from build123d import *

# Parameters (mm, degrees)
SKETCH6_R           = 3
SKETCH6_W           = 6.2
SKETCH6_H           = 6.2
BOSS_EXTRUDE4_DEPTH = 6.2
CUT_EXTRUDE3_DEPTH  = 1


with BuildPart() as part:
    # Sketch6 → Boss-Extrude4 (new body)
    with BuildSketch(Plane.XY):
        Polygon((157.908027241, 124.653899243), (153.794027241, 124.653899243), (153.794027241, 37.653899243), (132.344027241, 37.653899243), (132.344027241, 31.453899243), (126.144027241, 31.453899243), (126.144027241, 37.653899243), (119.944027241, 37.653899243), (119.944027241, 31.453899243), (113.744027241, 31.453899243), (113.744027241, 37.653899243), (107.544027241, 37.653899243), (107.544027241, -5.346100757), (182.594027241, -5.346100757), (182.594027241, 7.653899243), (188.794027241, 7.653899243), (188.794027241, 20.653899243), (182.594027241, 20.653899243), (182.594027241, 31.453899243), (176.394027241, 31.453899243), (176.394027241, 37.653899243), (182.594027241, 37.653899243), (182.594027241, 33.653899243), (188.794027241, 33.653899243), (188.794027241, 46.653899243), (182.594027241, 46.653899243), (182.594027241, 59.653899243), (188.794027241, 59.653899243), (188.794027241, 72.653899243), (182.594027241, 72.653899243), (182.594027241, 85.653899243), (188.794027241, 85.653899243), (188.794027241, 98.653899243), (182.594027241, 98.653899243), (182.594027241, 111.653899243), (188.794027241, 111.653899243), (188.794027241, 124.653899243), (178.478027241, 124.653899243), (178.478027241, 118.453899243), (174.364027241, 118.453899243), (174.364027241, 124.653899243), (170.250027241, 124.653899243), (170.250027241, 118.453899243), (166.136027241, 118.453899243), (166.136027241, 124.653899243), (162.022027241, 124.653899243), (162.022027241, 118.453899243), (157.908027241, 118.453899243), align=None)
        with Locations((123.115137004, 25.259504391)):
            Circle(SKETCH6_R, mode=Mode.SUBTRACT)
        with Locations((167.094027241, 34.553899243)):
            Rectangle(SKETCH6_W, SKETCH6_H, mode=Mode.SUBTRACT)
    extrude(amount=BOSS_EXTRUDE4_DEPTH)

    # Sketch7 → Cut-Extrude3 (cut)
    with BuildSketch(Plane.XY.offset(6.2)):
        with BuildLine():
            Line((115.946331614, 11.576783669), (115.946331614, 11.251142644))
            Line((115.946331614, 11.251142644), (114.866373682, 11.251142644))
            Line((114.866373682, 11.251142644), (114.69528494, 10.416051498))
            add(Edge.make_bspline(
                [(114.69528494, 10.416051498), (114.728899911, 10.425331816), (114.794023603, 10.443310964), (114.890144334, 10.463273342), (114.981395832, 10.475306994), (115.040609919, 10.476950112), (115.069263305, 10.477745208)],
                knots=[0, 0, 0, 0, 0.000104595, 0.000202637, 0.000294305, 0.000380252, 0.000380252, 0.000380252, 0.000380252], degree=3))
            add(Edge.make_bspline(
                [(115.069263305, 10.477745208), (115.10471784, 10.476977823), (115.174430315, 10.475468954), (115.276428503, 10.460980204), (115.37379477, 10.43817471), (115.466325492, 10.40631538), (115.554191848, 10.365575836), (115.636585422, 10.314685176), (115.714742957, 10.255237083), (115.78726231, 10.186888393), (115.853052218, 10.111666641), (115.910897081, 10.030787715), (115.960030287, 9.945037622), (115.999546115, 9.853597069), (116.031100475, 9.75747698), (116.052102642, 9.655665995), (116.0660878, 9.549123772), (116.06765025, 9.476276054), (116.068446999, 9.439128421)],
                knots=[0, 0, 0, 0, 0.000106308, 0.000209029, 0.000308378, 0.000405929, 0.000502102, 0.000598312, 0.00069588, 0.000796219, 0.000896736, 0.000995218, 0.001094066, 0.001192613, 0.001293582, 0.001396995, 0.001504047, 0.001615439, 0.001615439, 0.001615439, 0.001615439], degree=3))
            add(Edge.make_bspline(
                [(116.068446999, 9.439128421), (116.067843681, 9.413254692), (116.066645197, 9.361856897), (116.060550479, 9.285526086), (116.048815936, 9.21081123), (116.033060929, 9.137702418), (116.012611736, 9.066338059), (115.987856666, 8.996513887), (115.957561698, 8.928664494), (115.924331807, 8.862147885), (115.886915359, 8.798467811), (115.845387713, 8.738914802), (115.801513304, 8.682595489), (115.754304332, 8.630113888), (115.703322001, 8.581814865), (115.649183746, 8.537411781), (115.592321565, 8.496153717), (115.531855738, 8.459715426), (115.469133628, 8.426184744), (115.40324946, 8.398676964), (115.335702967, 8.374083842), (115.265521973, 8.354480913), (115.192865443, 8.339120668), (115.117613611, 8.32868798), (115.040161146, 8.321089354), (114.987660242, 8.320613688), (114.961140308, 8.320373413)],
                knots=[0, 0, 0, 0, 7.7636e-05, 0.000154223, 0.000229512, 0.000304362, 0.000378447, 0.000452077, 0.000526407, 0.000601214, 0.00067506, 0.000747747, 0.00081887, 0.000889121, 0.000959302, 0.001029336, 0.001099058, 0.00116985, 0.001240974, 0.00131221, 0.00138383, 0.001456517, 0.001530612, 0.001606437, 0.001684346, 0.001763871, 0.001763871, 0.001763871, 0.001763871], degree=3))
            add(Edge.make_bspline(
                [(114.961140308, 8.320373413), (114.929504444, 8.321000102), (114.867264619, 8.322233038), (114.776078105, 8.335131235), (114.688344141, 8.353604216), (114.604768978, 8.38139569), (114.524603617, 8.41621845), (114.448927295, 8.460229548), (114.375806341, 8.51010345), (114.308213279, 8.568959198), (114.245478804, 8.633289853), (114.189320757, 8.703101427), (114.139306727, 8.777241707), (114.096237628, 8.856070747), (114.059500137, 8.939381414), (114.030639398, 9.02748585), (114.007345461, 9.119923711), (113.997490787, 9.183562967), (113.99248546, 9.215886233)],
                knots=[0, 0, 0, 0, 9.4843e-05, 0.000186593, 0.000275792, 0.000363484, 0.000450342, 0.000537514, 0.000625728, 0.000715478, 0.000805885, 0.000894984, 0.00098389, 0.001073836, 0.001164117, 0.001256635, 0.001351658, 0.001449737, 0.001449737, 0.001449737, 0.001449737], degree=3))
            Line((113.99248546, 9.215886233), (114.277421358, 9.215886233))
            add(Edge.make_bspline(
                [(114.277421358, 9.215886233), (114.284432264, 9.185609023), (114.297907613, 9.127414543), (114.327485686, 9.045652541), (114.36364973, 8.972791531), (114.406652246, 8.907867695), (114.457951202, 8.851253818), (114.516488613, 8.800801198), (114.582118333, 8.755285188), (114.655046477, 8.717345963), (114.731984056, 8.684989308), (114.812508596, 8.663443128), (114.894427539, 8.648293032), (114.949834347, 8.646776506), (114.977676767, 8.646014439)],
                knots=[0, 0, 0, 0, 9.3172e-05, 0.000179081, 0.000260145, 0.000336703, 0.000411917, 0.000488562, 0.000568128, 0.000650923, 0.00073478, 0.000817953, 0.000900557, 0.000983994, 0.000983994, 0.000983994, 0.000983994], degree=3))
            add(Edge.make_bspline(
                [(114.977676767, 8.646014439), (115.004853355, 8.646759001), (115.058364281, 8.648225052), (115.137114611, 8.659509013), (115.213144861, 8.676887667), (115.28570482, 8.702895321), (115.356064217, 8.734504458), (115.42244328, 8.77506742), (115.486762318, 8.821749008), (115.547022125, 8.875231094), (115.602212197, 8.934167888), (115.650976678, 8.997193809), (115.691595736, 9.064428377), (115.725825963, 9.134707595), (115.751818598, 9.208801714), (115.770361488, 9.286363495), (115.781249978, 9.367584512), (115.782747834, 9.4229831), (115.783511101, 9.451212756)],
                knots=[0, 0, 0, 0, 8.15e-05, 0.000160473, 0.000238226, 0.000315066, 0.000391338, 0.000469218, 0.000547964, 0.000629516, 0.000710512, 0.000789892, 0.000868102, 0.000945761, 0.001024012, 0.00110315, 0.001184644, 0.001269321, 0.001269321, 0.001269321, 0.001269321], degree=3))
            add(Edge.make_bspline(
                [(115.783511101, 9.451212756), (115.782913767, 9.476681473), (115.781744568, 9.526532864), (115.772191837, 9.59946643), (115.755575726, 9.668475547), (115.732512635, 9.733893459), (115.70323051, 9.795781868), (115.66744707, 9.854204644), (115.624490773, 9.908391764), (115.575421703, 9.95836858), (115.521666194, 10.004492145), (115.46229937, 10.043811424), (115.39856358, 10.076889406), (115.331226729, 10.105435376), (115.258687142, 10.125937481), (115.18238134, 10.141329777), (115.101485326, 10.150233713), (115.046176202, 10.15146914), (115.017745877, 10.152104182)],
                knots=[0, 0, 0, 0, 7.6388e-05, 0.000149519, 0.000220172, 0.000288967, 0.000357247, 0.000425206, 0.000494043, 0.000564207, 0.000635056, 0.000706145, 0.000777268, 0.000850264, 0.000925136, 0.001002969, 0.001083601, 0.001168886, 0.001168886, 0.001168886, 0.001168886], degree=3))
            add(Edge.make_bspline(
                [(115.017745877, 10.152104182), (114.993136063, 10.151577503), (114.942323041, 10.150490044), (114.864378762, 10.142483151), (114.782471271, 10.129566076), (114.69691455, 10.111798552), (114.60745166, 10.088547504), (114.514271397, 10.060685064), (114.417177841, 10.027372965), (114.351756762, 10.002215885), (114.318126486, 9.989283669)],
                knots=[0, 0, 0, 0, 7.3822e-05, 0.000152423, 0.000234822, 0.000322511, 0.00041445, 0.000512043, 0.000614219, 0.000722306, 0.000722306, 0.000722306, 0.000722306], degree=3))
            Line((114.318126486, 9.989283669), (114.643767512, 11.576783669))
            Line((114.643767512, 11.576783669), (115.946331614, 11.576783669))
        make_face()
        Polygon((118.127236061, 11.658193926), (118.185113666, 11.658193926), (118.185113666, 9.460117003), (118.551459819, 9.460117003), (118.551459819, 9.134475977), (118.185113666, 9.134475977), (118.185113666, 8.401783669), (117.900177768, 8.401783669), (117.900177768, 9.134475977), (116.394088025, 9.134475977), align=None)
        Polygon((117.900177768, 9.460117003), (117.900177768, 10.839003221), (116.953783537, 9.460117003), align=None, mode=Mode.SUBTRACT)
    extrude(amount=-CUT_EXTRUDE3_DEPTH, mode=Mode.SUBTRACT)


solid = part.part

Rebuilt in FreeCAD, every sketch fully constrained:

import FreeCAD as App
import Part
import Sketcher

V = App.Vector

doc = App.newDocument("Part")
body = doc.addObject("PartDesign::Body", "Body")

sketch1 = doc.addObject("Sketcher::SketchObject", "Sketch")
body.addObject(sketch1)
sketch1.AttachmentSupport = (doc.XY_Plane, [""])
sketch1.MapMode = "FlatFace"
sketch1.addGeometry(Part.LineSegment(V(157.9, 124.7, 0), V(153.8, 124.7, 0)), False)
sketch1.addGeometry(Part.LineSegment(V(153.8, 124.7, 0), V(153.8, 37.7, 0)), False)
sketch1.addGeometry(Part.LineSegment(V(153.8, 37.7, 0), V(132.3, 37.7, 0)), False)
sketch1.addGeometry(Part.LineSegment(V(132.3, 37.7, 0), V(132.3, 31.5, 0)), False)
sketch1.addGeometry(Part.LineSegment(V(132.3, 31.5, 0), V(126.1, 31.5, 0)), False)
sketch1.addGeometry(Part.LineSegment(V(126.1, 31.5, 0), V(126.1, 37.7, 0)), False)
sketch1.addGeometry(Part.LineSegment(V(126.1, 37.7, 0), V(119.9, 37.7, 0)), False)
sketch1.addGeometry(Part.LineSegment(V(119.9, 37.7, 0), V(119.9, 31.5, 0)), False)
sketch1.addGeometry(Part.LineSegment(V(119.9, 31.5, 0), V(113.7, 31.5, 0)), False)
sketch1.addGeometry(Part.LineSegment(V(113.7, 31.5, 0), V(113.7, 37.7, 0)), False)
sketch1.addGeometry(Part.LineSegment(V(113.7, 37.7, 0), V(107.5, 37.7, 0)), False)
sketch1.addGeometry(Part.LineSegment(V(107.5, 37.7, 0), V(107.5, -5.3, 0)), False)
sketch1.addGeometry(Part.LineSegment(V(107.5, -5.3, 0), V(182.6, -5.3, 0)), False)
sketch1.addGeometry(Part.LineSegment(V(182.6, -5.3, 0), V(182.6, 7.7, 0)), False)
sketch1.addGeometry(Part.LineSegment(V(182.6, 7.7, 0), V(188.8, 7.7, 0)), False)
sketch1.addGeometry(Part.LineSegment(V(188.8, 7.7, 0), V(188.8, 20.7, 0)), False)
sketch1.addGeometry(Part.LineSegment(V(188.8, 20.7, 0), V(182.6, 20.7, 0)), False)
sketch1.addGeometry(Part.LineSegment(V(182.6, 20.7, 0), V(182.6, 31.5, 0)), False)
sketch1.addGeometry(Part.LineSegment(V(182.6, 31.5, 0), V(176.4, 31.5, 0)), False)
sketch1.addGeometry(Part.LineSegment(V(176.4, 31.5, 0), V(176.4, 37.7, 0)), False)
sketch1.addGeometry(Part.LineSegment(V(176.4, 37.7, 0), V(182.6, 37.7, 0)), False)
sketch1.addGeometry(Part.LineSegment(V(182.6, 37.7, 0), V(182.6, 33.7, 0)), False)
sketch1.addGeometry(Part.LineSegment(V(182.6, 33.7, 0), V(188.8, 33.7, 0)), False)
sketch1.addGeometry(Part.LineSegment(V(188.8, 33.7, 0), V(188.8, 46.7, 0)), False)
sketch1.addGeometry(Part.LineSegment(V(188.8, 46.7, 0), V(182.6, 46.7, 0)), False)
sketch1.addGeometry(Part.LineSegment(V(182.6, 46.7, 0), V(182.6, 59.7, 0)), False)
sketch1.addGeometry(Part.LineSegment(V(182.6, 59.7, 0), V(188.8, 59.7, 0)), False)
sketch1.addGeometry(Part.LineSegment(V(188.8, 59.7, 0), V(188.8, 72.7, 0)), False)
sketch1.addGeometry(Part.LineSegment(V(188.8, 72.7, 0), V(182.6, 72.7, 0)), False)
sketch1.addGeometry(Part.LineSegment(V(182.6, 72.7, 0), V(182.6, 85.7, 0)), False)
sketch1.addGeometry(Part.LineSegment(V(182.6, 85.7, 0), V(188.8, 85.7, 0)), False)
sketch1.addGeometry(Part.LineSegment(V(188.8, 85.7, 0), V(188.8, 98.7, 0)), False)
sketch1.addGeometry(Part.LineSegment(V(188.8, 98.7, 0), V(182.6, 98.7, 0)), False)
sketch1.addGeometry(Part.LineSegment(V(182.6, 98.7, 0), V(182.6, 111.7, 0)), False)
sketch1.addGeometry(Part.LineSegment(V(182.6, 111.7, 0), V(188.8, 111.7, 0)), False)
sketch1.addGeometry(Part.LineSegment(V(188.8, 111.7, 0), V(188.8, 124.7, 0)), False)
sketch1.addGeometry(Part.LineSegment(V(188.8, 124.7, 0), V(178.5, 124.7, 0)), False)
sketch1.addGeometry(Part.LineSegment(V(178.5, 124.7, 0), V(178.5, 118.5, 0)), False)
sketch1.addGeometry(Part.LineSegment(V(178.5, 118.5, 0), V(174.4, 118.5, 0)), False)
sketch1.addGeometry(Part.LineSegment(V(174.4, 118.5, 0), V(174.4, 124.7, 0)), False)
sketch1.addGeometry(Part.LineSegment(V(174.4, 124.7, 0), V(170.3, 124.7, 0)), False)
sketch1.addGeometry(Part.LineSegment(V(170.3, 124.7, 0), V(170.3, 118.5, 0)), False)
sketch1.addGeometry(Part.LineSegment(V(170.3, 118.5, 0), V(166.1, 118.5, 0)), False)
sketch1.addGeometry(Part.LineSegment(V(166.1, 118.5, 0), V(166.1, 124.7, 0)), False)
sketch1.addGeometry(Part.LineSegment(V(166.1, 124.7, 0), V(162, 124.7, 0)), False)
sketch1.addGeometry(Part.LineSegment(V(162, 124.7, 0), V(162, 118.5, 0)), False)
sketch1.addGeometry(Part.LineSegment(V(162, 118.5, 0), V(157.9, 118.5, 0)), False)
sketch1.addGeometry(Part.LineSegment(V(157.9, 118.5, 0), V(157.9, 124.7, 0)), False)
sketch1.addGeometry(Part.Circle(V(123.1, 25.3, 0), V(0, 0, 1), 3), False)
sketch1.addGeometry(Part.LineSegment(V(170.2, 31.5, 0), V(164, 31.5, 0)), False)
sketch1.addGeometry(Part.LineSegment(V(164, 31.5, 0), V(164, 37.7, 0)), False)
sketch1.addGeometry(Part.LineSegment(V(164, 37.7, 0), V(170.2, 37.7, 0)), False)
sketch1.addGeometry(Part.LineSegment(V(170.2, 37.7, 0), V(170.2, 31.5, 0)), False)
sketch1.addConstraint(Sketcher.Constraint("Coincident", 0, 2, 1, 1))
sketch1.addConstraint(Sketcher.Constraint("Coincident", 1, 2, 2, 1))
sketch1.addConstraint(Sketcher.Constraint("Coincident", 2, 2, 3, 1))
sketch1.addConstraint(Sketcher.Constraint("Coincident", 3, 2, 4, 1))
sketch1.addConstraint(Sketcher.Constraint("Coincident", 4, 2, 5, 1))
sketch1.addConstraint(Sketcher.Constraint("Coincident", 5, 2, 6, 1))
sketch1.addConstraint(Sketcher.Constraint("Coincident", 6, 2, 7, 1))
sketch1.addConstraint(Sketcher.Constraint("Coincident", 7, 2, 8, 1))
sketch1.addConstraint(Sketcher.Constraint("Coincident", 8, 2, 9, 1))
sketch1.addConstraint(Sketcher.Constraint("Coincident", 9, 2, 10, 1))
sketch1.addConstraint(Sketcher.Constraint("Coincident", 10, 2, 11, 1))
sketch1.addConstraint(Sketcher.Constraint("Coincident", 11, 2, 12, 1))
sketch1.addConstraint(Sketcher.Constraint("Coincident", 12, 2, 13, 1))
sketch1.addConstraint(Sketcher.Constraint("Coincident", 13, 2, 14, 1))
sketch1.addConstraint(Sketcher.Constraint("Coincident", 14, 2, 15, 1))
sketch1.addConstraint(Sketcher.Constraint("Coincident", 15, 2, 16, 1))
sketch1.addConstraint(Sketcher.Constraint("Coincident", 16, 2, 17, 1))
sketch1.addConstraint(Sketcher.Constraint("Coincident", 17, 2, 18, 1))
sketch1.addConstraint(Sketcher.Constraint("Coincident", 18, 2, 19, 1))
sketch1.addConstraint(Sketcher.Constraint("Coincident", 19, 2, 20, 1))
sketch1.addConstraint(Sketcher.Constraint("Coincident", 20, 2, 21, 1))
sketch1.addConstraint(Sketcher.Constraint("Coincident", 21, 2, 22, 1))
sketch1.addConstraint(Sketcher.Constraint("Coincident", 22, 2, 23, 1))
sketch1.addConstraint(Sketcher.Constraint("Coincident", 23, 2, 24, 1))
sketch1.addConstraint(Sketcher.Constraint("Coincident", 24, 2, 25, 1))
sketch1.addConstraint(Sketcher.Constraint("Coincident", 25, 2, 26, 1))
sketch1.addConstraint(Sketcher.Constraint("Coincident", 26, 2, 27, 1))
sketch1.addConstraint(Sketcher.Constraint("Coincident", 27, 2, 28, 1))
sketch1.addConstraint(Sketcher.Constraint("Coincident", 28, 2, 29, 1))
sketch1.addConstraint(Sketcher.Constraint("Coincident", 29, 2, 30, 1))
sketch1.addConstraint(Sketcher.Constraint("Coincident", 30, 2, 31, 1))
sketch1.addConstraint(Sketcher.Constraint("Coincident", 31, 2, 32, 1))
sketch1.addConstraint(Sketcher.Constraint("Coincident", 32, 2, 33, 1))
sketch1.addConstraint(Sketcher.Constraint("Coincident", 33, 2, 34, 1))
sketch1.addConstraint(Sketcher.Constraint("Coincident", 34, 2, 35, 1))
sketch1.addConstraint(Sketcher.Constraint("Coincident", 35, 2, 36, 1))
sketch1.addConstraint(Sketcher.Constraint("Coincident", 36, 2, 37, 1))
sketch1.addConstraint(Sketcher.Constraint("Coincident", 37, 2, 38, 1))
sketch1.addConstraint(Sketcher.Constraint("Coincident", 38, 2, 39, 1))
sketch1.addConstraint(Sketcher.Constraint("Coincident", 39, 2, 40, 1))
sketch1.addConstraint(Sketcher.Constraint("Coincident", 40, 2, 41, 1))
sketch1.addConstraint(Sketcher.Constraint("Coincident", 41, 2, 42, 1))
sketch1.addConstraint(Sketcher.Constraint("Coincident", 42, 2, 43, 1))
sketch1.addConstraint(Sketcher.Constraint("Coincident", 43, 2, 44, 1))
sketch1.addConstraint(Sketcher.Constraint("Coincident", 44, 2, 45, 1))
sketch1.addConstraint(Sketcher.Constraint("Coincident", 45, 2, 46, 1))
sketch1.addConstraint(Sketcher.Constraint("Coincident", 46, 2, 47, 1))
sketch1.addConstraint(Sketcher.Constraint("Coincident", 47, 2, 0, 1))
sketch1.addConstraint(Sketcher.Constraint("Coincident", 49, 2, 50, 1))
sketch1.addConstraint(Sketcher.Constraint("Coincident", 50, 2, 51, 1))
sketch1.addConstraint(Sketcher.Constraint("Coincident", 51, 2, 52, 1))
sketch1.addConstraint(Sketcher.Constraint("Coincident", 52, 2, 49, 1))
sketch1.addConstraint(Sketcher.Constraint("Horizontal", 0))
sketch1.addConstraint(Sketcher.Constraint("Vertical", 1))
sketch1.addConstraint(Sketcher.Constraint("Horizontal", 2))
sketch1.addConstraint(Sketcher.Constraint("Vertical", 3))
sketch1.addConstraint(Sketcher.Constraint("Horizontal", 4))
sketch1.addConstraint(Sketcher.Constraint("Vertical", 5))
sketch1.addConstraint(Sketcher.Constraint("Horizontal", 6))
sketch1.addConstraint(Sketcher.Constraint("Vertical", 7))
sketch1.addConstraint(Sketcher.Constraint("Horizontal", 8))
sketch1.addConstraint(Sketcher.Constraint("Vertical", 9))
sketch1.addConstraint(Sketcher.Constraint("Horizontal", 10))
sketch1.addConstraint(Sketcher.Constraint("Vertical", 11))
sketch1.addConstraint(Sketcher.Constraint("Horizontal", 12))
sketch1.addConstraint(Sketcher.Constraint("Vertical", 13))
sketch1.addConstraint(Sketcher.Constraint("Horizontal", 14))
sketch1.addConstraint(Sketcher.Constraint("Vertical", 15))
sketch1.addConstraint(Sketcher.Constraint("Horizontal", 16))
sketch1.addConstraint(Sketcher.Constraint("Vertical", 17))
sketch1.addConstraint(Sketcher.Constraint("Horizontal", 18))
sketch1.addConstraint(Sketcher.Constraint("Vertical", 19))
sketch1.addConstraint(Sketcher.Constraint("Horizontal", 20))
sketch1.addConstraint(Sketcher.Constraint("Vertical", 21))
sketch1.addConstraint(Sketcher.Constraint("Horizontal", 22))
sketch1.addConstraint(Sketcher.Constraint("Vertical", 23))
sketch1.addConstraint(Sketcher.Constraint("Horizontal", 24))
sketch1.addConstraint(Sketcher.Constraint("Vertical", 25))
sketch1.addConstraint(Sketcher.Constraint("Horizontal", 26))
sketch1.addConstraint(Sketcher.Constraint("Vertical", 27))
sketch1.addConstraint(Sketcher.Constraint("Horizontal", 28))
sketch1.addConstraint(Sketcher.Constraint("Vertical", 29))
sketch1.addConstraint(Sketcher.Constraint("Horizontal", 30))
sketch1.addConstraint(Sketcher.Constraint("Vertical", 31))
sketch1.addConstraint(Sketcher.Constraint("Horizontal", 32))
sketch1.addConstraint(Sketcher.Constraint("Vertical", 33))
sketch1.addConstraint(Sketcher.Constraint("Horizontal", 34))
sketch1.addConstraint(Sketcher.Constraint("Vertical", 35))
sketch1.addConstraint(Sketcher.Constraint("Horizontal", 36))
sketch1.addConstraint(Sketcher.Constraint("Vertical", 37))
sketch1.addConstraint(Sketcher.Constraint("Horizontal", 38))
sketch1.addConstraint(Sketcher.Constraint("Vertical", 39))
sketch1.addConstraint(Sketcher.Constraint("Horizontal", 40))
sketch1.addConstraint(Sketcher.Constraint("Vertical", 41))
sketch1.addConstraint(Sketcher.Constraint("Horizontal", 42))
sketch1.addConstraint(Sketcher.Constraint("Vertical", 43))
sketch1.addConstraint(Sketcher.Constraint("Horizontal", 44))
sketch1.addConstraint(Sketcher.Constraint("Vertical", 45))
sketch1.addConstraint(Sketcher.Constraint("Horizontal", 46))
sketch1.addConstraint(Sketcher.Constraint("Vertical", 47))
sketch1.addConstraint(Sketcher.Constraint("Horizontal", 49))
sketch1.addConstraint(Sketcher.Constraint("Vertical", 50))
sketch1.addConstraint(Sketcher.Constraint("Horizontal", 51))
sketch1.addConstraint(Sketcher.Constraint("Vertical", 52))
sketch1.addConstraint(Sketcher.Constraint("Horizontal", 2, 2, 5, 2))
sketch1.addConstraint(Sketcher.Constraint("Horizontal", 4, 2, 7, 2))
sketch1.addConstraint(Sketcher.Constraint("Horizontal", 6, 2, 9, 2))
sketch1.addConstraint(Sketcher.Constraint("Horizontal", 8, 2, 17, 2))
sketch1.addConstraint(Sketcher.Constraint("Horizontal", 10, 2, 19, 2))
sketch1.addConstraint(Sketcher.Constraint("Horizontal", 0, 2, 35, 2))
sketch1.addConstraint(Sketcher.Constraint("Horizontal", 36, 2, 39, 2))
sketch1.addConstraint(Sketcher.Constraint("Horizontal", 38, 2, 41, 2))
sketch1.addConstraint(Sketcher.Constraint("Horizontal", 40, 2, 43, 2))
sketch1.addConstraint(Sketcher.Constraint("Horizontal", 42, 2, 45, 2))
sketch1.addConstraint(Sketcher.Constraint("Horizontal", 18, 2, 49, 2))
sketch1.addConstraint(Sketcher.Constraint("Horizontal", 20, 2, 50, 2))
sketch1.addConstraint(Sketcher.Constraint("Vertical", 13, 2, 16, 2))
sketch1.addConstraint(Sketcher.Constraint("Vertical", 17, 2, 20, 2))
sketch1.addConstraint(Sketcher.Constraint("Vertical", 15, 2, 22, 2))
sketch1.addConstraint(Sketcher.Constraint("Vertical", 21, 2, 24, 2))
sketch1.addConstraint(Sketcher.Constraint("Vertical", 23, 2, 26, 2))
sketch1.addConstraint(Sketcher.Constraint("Vertical", 25, 2, 28, 2))
sketch1.addConstraint(Sketcher.Constraint("Vertical", 27, 2, 30, 2))
sketch1.addConstraint(Sketcher.Constraint("Vertical", 29, 2, 32, 2))
sketch1.addConstraint(Sketcher.Constraint("Vertical", 31, 2, 34, 2))
sketch1.addConstraint(Sketcher.Constraint("Equal", 4, 6))
sketch1.addConstraint(Sketcher.Constraint("Equal", 6, 8))
sketch1.addConstraint(Sketcher.Constraint("Equal", 8, 10))
sketch1.addConstraint(Sketcher.Constraint("Equal", 10, 14))
sketch1.addConstraint(Sketcher.Constraint("Equal", 16, 18))
sketch1.addConstraint(Sketcher.Constraint("Equal", 0, 38))
sketch1.addConstraint(Sketcher.Constraint("Equal", 38, 40))
sketch1.addConstraint(Sketcher.Constraint("Equal", 40, 42))
sketch1.addConstraint(Sketcher.Constraint("Equal", 42, 44))
sketch1.addConstraint(Sketcher.Constraint("Equal", 44, 46))
sketch1.addConstraint(Sketcher.Constraint("Equal", 34, 49))
sketch1.addConstraint(Sketcher.Constraint("Equal", 51, 3))
sketch1.addConstraint(Sketcher.Constraint("Equal", 13, 15))
sketch1.addConstraint(Sketcher.Constraint("Equal", 15, 23))
sketch1.addConstraint(Sketcher.Constraint("Equal", 23, 25))
sketch1.addConstraint(Sketcher.Constraint("Equal", 25, 27))
sketch1.addConstraint(Sketcher.Constraint("Equal", 27, 29))
sketch1.addConstraint(Sketcher.Constraint("Equal", 29, 31))
sketch1.addConstraint(Sketcher.Constraint("Equal", 31, 33))
sketch1.addConstraint(Sketcher.Constraint("Equal", 33, 35))
sketch1.addConstraint(Sketcher.Constraint("Equal", 19, 37))
sketch1.addConstraint(Sketcher.Constraint("Diameter", 48, 6.0))
sketch1.addConstraint(Sketcher.Constraint("DistanceY", 1, 2, 1, 1, 87.0))
sketch1.addConstraint(Sketcher.Constraint("DistanceY", 11, 2, 11, 1, 43.0))
sketch1.addConstraint(Sketcher.Constraint("DistanceY", 13, 1, 13, 2, 13.0))
sketch1.addConstraint(Sketcher.Constraint("DistanceX", 4, 2, 4, 1, 6.2))
sketch1.addConstraint(Sketcher.Constraint("DistanceX", 1, 2, 14, 2, 35.0))
sketch1.addConstraint(Sketcher.Constraint("DistanceX", 2, 2, 2, 1, 21.45))
sketch1.addConstraint(Sketcher.Constraint("DistanceX", 1, 2, 49, 2, 10.2))
sketch1.addConstraint(Sketcher.Constraint("DistanceX", 0, 2, 0, 1, 4.114))
sketch1.addConstraint(Sketcher.Constraint("DistanceY", -1, 1, 0, 2, 124.653899))
sketch1.addConstraint(Sketcher.Constraint("DistanceX", 48, 3, 0, 2, 30.67889))
sketch1.addConstraint(Sketcher.Constraint("DistanceX", -1, 1, 48, 3, 123.115137))
sketch1.addConstraint(Sketcher.Constraint("DistanceY", -1, 1, 48, 3, 25.259504))
pad1 = doc.addObject("PartDesign::Pad", "Pad")
body.addObject(pad1)
pad1.Profile = sketch1
pad1.Length = 6.2

sketch2 = doc.addObject("Sketcher::SketchObject", "Sketch001")
body.addObject(sketch2)
sketch2.AttachmentSupport = (doc.XY_Plane, [""])
sketch2.MapMode = "FlatFace"
sketch2.AttachmentOffset = App.Placement(V(0, 0, 6.2), App.Rotation())
sketch2.addGeometry(Part.LineSegment(V(115.946332, 11.251143, 0), V(115.946332, 11.576784, 0)), False)
sketch2.addGeometry(Part.LineSegment(V(115.946332, 11.576784, 0), V(114.643768, 11.576784, 0)), False)
sketch2.addGeometry(Part.LineSegment(V(114.643768, 11.576784, 0), V(114.318126, 9.989284, 0)), False)
sketch2.addGeometry(Part.BSplineCurve([V(115.017746, 10.152104, 0), V(114.993136, 10.151578, 0), V(114.942323, 10.15049, 0), V(114.864379, 10.142483, 0), V(114.782471, 10.129566, 0), V(114.696915, 10.111799, 0), V(114.607452, 10.088548, 0), V(114.514271, 10.060685, 0), V(114.417178, 10.027373, 0), V(114.351757, 10.002216, 0), V(114.318126, 9.989284, 0)], [4, 1, 1, 1, 1, 1, 1, 1, 4], [0, 0.000073822, 0.000152423, 0.000234822, 0.000322511, 0.00041445, 0.000512043, 0.000614219, 0.000722306], False, 3, [1, 1, 1, 1, 1, 1, 1, 1, 1, 1, 1], False), False)
sketch2.addGeometry(Part.BSplineCurve([V(115.783511, 9.451213, 0), V(115.782914, 9.476681, 0), V(115.781745, 9.526533, 0), V(115.772192, 9.599466, 0), V(115.755576, 9.668476, 0), V(115.732513, 9.733893, 0), V(115.703231, 9.795782, 0), V(115.667447, 9.854205, 0), V(115.624491, 9.908392, 0), V(115.575422, 9.958369, 0), V(115.521666, 10.004492, 0), V(115.462299, 10.043811, 0), V(115.398564, 10.076889, 0), V(115.331227, 10.105435, 0), V(115.258687, 10.125937, 0), V(115.182381, 10.14133, 0), V(115.101485, 10.150234, 0), V(115.046176, 10.151469, 0), V(115.017746, 10.152104, 0)], [4, 1, 1, 1, 1, 1, 1, 1, 1, 1, 1, 1, 1, 1, 1, 1, 4], [0, 0.000076388, 0.000149519, 0.000220172, 0.000288967, 0.000357247, 0.000425206, 0.000494043, 0.000564207, 0.000635056, 0.000706145, 0.000777268, 0.000850264, 0.000925136, 0.001002969, 0.001083601, 0.001168886], False, 3, [1, 1, 1, 1, 1, 1, 1, 1, 1, 1, 1, 1, 1, 1, 1, 1, 1, 1, 1], False), False)
sketch2.addGeometry(Part.BSplineCurve([V(114.977677, 8.646014, 0), V(115.004853, 8.646759, 0), V(115.058364, 8.648225, 0), V(115.137115, 8.659509, 0), V(115.213145, 8.676888, 0), V(115.285705, 8.702895, 0), V(115.356064, 8.734504, 0), V(115.422443, 8.775067, 0), V(115.486762, 8.821749, 0), V(115.547022, 8.875231, 0), V(115.602212, 8.934168, 0), V(115.650977, 8.997194, 0), V(115.691596, 9.064428, 0), V(115.725826, 9.134708, 0), V(115.751819, 9.208802, 0), V(115.770361, 9.286363, 0), V(115.78125, 9.367585, 0), V(115.782748, 9.422983, 0), V(115.783511, 9.451213, 0)], [4, 1, 1, 1, 1, 1, 1, 1, 1, 1, 1, 1, 1, 1, 1, 1, 4], [0, 0.0000815, 0.000160473, 0.000238226, 0.000315066, 0.000391338, 0.000469218, 0.000547964, 0.000629516, 0.000710512, 0.000789892, 0.000868102, 0.000945761, 0.001024012, 0.00110315, 0.001184644, 0.001269321], False, 3, [1, 1, 1, 1, 1, 1, 1, 1, 1, 1, 1, 1, 1, 1, 1, 1, 1, 1, 1], False), False)
sketch2.addGeometry(Part.BSplineCurve([V(114.277421, 9.215886, 0), V(114.284432, 9.185609, 0), V(114.297908, 9.127415, 0), V(114.327486, 9.045653, 0), V(114.36365, 8.972792, 0), V(114.406652, 8.907868, 0), V(114.457951, 8.851254, 0), V(114.516489, 8.800801, 0), V(114.582118, 8.755285, 0), V(114.655046, 8.717346, 0), V(114.731984, 8.684989, 0), V(114.812509, 8.663443, 0), V(114.894428, 8.648293, 0), V(114.949834, 8.646777, 0), V(114.977677, 8.646014, 0)], [4, 1, 1, 1, 1, 1, 1, 1, 1, 1, 1, 1, 4], [0, 0.000093172, 0.000179081, 0.000260145, 0.000336703, 0.000411917, 0.000488562, 0.000568128, 0.000650923, 0.00073478, 0.000817953, 0.000900557, 0.000983994], False, 3, [1, 1, 1, 1, 1, 1, 1, 1, 1, 1, 1, 1, 1, 1, 1], False), False)
sketch2.addGeometry(Part.LineSegment(V(114.277421, 9.215886, 0), V(113.992485, 9.215886, 0)), False)
sketch2.addGeometry(Part.BSplineCurve([V(114.96114, 8.320373, 0), V(114.929504, 8.321, 0), V(114.867265, 8.322233, 0), V(114.776078, 8.335131, 0), V(114.688344, 8.353604, 0), V(114.604769, 8.381396, 0), V(114.524604, 8.416218, 0), V(114.448927, 8.46023, 0), V(114.375806, 8.510103, 0), V(114.308213, 8.568959, 0), V(114.245479, 8.63329, 0), V(114.189321, 8.703101, 0), V(114.139307, 8.777242, 0), V(114.096238, 8.856071, 0), V(114.0595, 8.939381, 0), V(114.030639, 9.027486, 0), V(114.007345, 9.119924, 0), V(113.997491, 9.183563, 0), V(113.992485, 9.215886, 0)], [4, 1, 1, 1, 1, 1, 1, 1, 1, 1, 1, 1, 1, 1, 1, 1, 4], [0, 0.000094843, 0.000186593, 0.000275792, 0.000363484, 0.000450342, 0.000537514, 0.000625728, 0.000715478, 0.000805885, 0.000894984, 0.00098389, 0.001073836, 0.001164117, 0.001256635, 0.001351658, 0.001449737], False, 3, [1, 1, 1, 1, 1, 1, 1, 1, 1, 1, 1, 1, 1, 1, 1, 1, 1, 1, 1], False), False)
sketch2.addGeometry(Part.BSplineCurve([V(116.068447, 9.439128, 0), V(116.067844, 9.413255, 0), V(116.066645, 9.361857, 0), V(116.06055, 9.285526, 0), V(116.048816, 9.210811, 0), V(116.033061, 9.137702, 0), V(116.012612, 9.066338, 0), V(115.987857, 8.996514, 0), V(115.957562, 8.928664, 0), V(115.924332, 8.862148, 0), V(115.886915, 8.798468, 0), V(115.845388, 8.738915, 0), V(115.801513, 8.682595, 0), V(115.754304, 8.630114, 0), V(115.703322, 8.581815, 0), V(115.649184, 8.537412, 0), V(115.592322, 8.496154, 0), V(115.531856, 8.459715, 0), V(115.469134, 8.426185, 0), V(115.403249, 8.398677, 0), V(115.335703, 8.374084, 0), V(115.265522, 8.354481, 0), V(115.192865, 8.339121, 0), V(115.117614, 8.328688, 0), V(115.040161, 8.321089, 0), V(114.98766, 8.320614, 0), V(114.96114, 8.320373, 0)], [4, 1, 1, 1, 1, 1, 1, 1, 1, 1, 1, 1, 1, 1, 1, 1, 1, 1, 1, 1, 1, 1, 1, 1, 4], [0, 0.000077636, 0.000154223, 0.000229512, 0.000304362, 0.000378447, 0.000452077, 0.000526407, 0.000601214, 0.00067506, 0.000747747, 0.00081887, 0.000889121, 0.000959302, 0.001029336, 0.001099058, 0.00116985, 0.001240974, 0.00131221, 0.00138383, 0.001456517, 0.001530612, 0.001606437, 0.001684346, 0.001763871], False, 3, [1, 1, 1, 1, 1, 1, 1, 1, 1, 1, 1, 1, 1, 1, 1, 1, 1, 1, 1, 1, 1, 1, 1, 1, 1, 1, 1], False), False)
sketch2.addGeometry(Part.BSplineCurve([V(115.069263, 10.477745, 0), V(115.104718, 10.476978, 0), V(115.17443, 10.475469, 0), V(115.276429, 10.46098, 0), V(115.373795, 10.438175, 0), V(115.466325, 10.406315, 0), V(115.554192, 10.365576, 0), V(115.636585, 10.314685, 0), V(115.714743, 10.255237, 0), V(115.787262, 10.186888, 0), V(115.853052, 10.111667, 0), V(115.910897, 10.030788, 0), V(115.96003, 9.945038, 0), V(115.999546, 9.853597, 0), V(116.0311, 9.757477, 0), V(116.052103, 9.655666, 0), V(116.066088, 9.549124, 0), V(116.06765, 9.476276, 0), V(116.068447, 9.439128, 0)], [4, 1, 1, 1, 1, 1, 1, 1, 1, 1, 1, 1, 1, 1, 1, 1, 4], [0, 0.000106308, 0.000209029, 0.000308378, 0.000405929, 0.000502102, 0.000598312, 0.00069588, 0.000796219, 0.000896736, 0.000995218, 0.001094066, 0.001192613, 0.001293582, 0.001396995, 0.001504047, 0.001615439], False, 3, [1, 1, 1, 1, 1, 1, 1, 1, 1, 1, 1, 1, 1, 1, 1, 1, 1, 1, 1], False), False)
sketch2.addGeometry(Part.BSplineCurve([V(114.695285, 10.416051, 0), V(114.7289, 10.425332, 0), V(114.794024, 10.443311, 0), V(114.890144, 10.463273, 0), V(114.981396, 10.475307, 0), V(115.04061, 10.47695, 0), V(115.069263, 10.477745, 0)], [4, 1, 1, 1, 4], [0, 0.000104595, 0.000202637, 0.000294305, 0.000380252], False, 3, [1, 1, 1, 1, 1, 1, 1], False), False)
sketch2.addGeometry(Part.LineSegment(V(114.695285, 10.416051, 0), V(114.866374, 11.251143, 0)), False)
sketch2.addGeometry(Part.LineSegment(V(114.866374, 11.251143, 0), V(115.946332, 11.251143, 0)), False)
sketch2.addGeometry(Part.LineSegment(V(118.185114, 11.658194, 0), V(118.127236, 11.658194, 0)), False)
sketch2.addGeometry(Part.LineSegment(V(118.127236, 11.658194, 0), V(116.394088, 9.134476, 0)), False)
sketch2.addGeometry(Part.LineSegment(V(116.394088, 9.134476, 0), V(117.900178, 9.134476, 0)), False)
sketch2.addGeometry(Part.LineSegment(V(117.900178, 9.134476, 0), V(117.900178, 8.401784, 0)), False)
sketch2.addGeometry(Part.LineSegment(V(117.900178, 8.401784, 0), V(118.185114, 8.401784, 0)), False)
sketch2.addGeometry(Part.LineSegment(V(118.185114, 8.401784, 0), V(118.185114, 9.134476, 0)), False)
sketch2.addGeometry(Part.LineSegment(V(118.185114, 9.134476, 0), V(118.55146, 9.134476, 0)), False)
sketch2.addGeometry(Part.LineSegment(V(118.55146, 9.134476, 0), V(118.55146, 9.460117, 0)), False)
sketch2.addGeometry(Part.LineSegment(V(118.55146, 9.460117, 0), V(118.185114, 9.460117, 0)), False)
sketch2.addGeometry(Part.LineSegment(V(118.185114, 9.460117, 0), V(118.185114, 11.658194, 0)), False)
sketch2.addGeometry(Part.LineSegment(V(117.900178, 9.460117, 0), V(116.953784, 9.460117, 0)), False)
sketch2.addGeometry(Part.LineSegment(V(116.953784, 9.460117, 0), V(117.900178, 10.839003, 0)), False)
sketch2.addGeometry(Part.LineSegment(V(117.900178, 10.839003, 0), V(117.900178, 9.460117, 0)), False)
sketch2.addConstraint(Sketcher.Constraint("Block", 3))
sketch2.addConstraint(Sketcher.Constraint("Block", 4))
sketch2.addConstraint(Sketcher.Constraint("Block", 5))
sketch2.addConstraint(Sketcher.Constraint("Block", 6))
sketch2.addConstraint(Sketcher.Constraint("Block", 8))
sketch2.addConstraint(Sketcher.Constraint("Block", 9))
sketch2.addConstraint(Sketcher.Constraint("Block", 10))
sketch2.addConstraint(Sketcher.Constraint("Block", 11))
sketch2.addConstraint(Sketcher.Constraint("Coincident", 0, 2, 1, 1))
sketch2.addConstraint(Sketcher.Constraint("Coincident", 1, 2, 2, 1))
sketch2.addConstraint(Sketcher.Constraint("Coincident", 2, 2, 3, 2))
sketch2.addConstraint(Sketcher.Constraint("Coincident", 6, 1, 7, 1))
sketch2.addConstraint(Sketcher.Constraint("Coincident", 7, 2, 8, 2))
sketch2.addConstraint(Sketcher.Constraint("Coincident", 11, 1, 12, 1))
sketch2.addConstraint(Sketcher.Constraint("Coincident", 12, 2, 13, 1))
sketch2.addConstraint(Sketcher.Constraint("Coincident", 13, 2, 0, 1))
sketch2.addConstraint(Sketcher.Constraint("Coincident", 14, 2, 15, 1))
sketch2.addConstraint(Sketcher.Constraint("Coincident", 15, 2, 16, 1))
sketch2.addConstraint(Sketcher.Constraint("Coincident", 16, 2, 17, 1))
sketch2.addConstraint(Sketcher.Constraint("Coincident", 17, 2, 18, 1))
sketch2.addConstraint(Sketcher.Constraint("Coincident", 18, 2, 19, 1))
sketch2.addConstraint(Sketcher.Constraint("Coincident", 19, 2, 20, 1))
sketch2.addConstraint(Sketcher.Constraint("Coincident", 20, 2, 21, 1))
sketch2.addConstraint(Sketcher.Constraint("Coincident", 21, 2, 22, 1))
sketch2.addConstraint(Sketcher.Constraint("Coincident", 22, 2, 23, 1))
sketch2.addConstraint(Sketcher.Constraint("Coincident", 23, 2, 14, 1))
sketch2.addConstraint(Sketcher.Constraint("Coincident", 24, 2, 25, 1))
sketch2.addConstraint(Sketcher.Constraint("Coincident", 25, 2, 26, 1))
sketch2.addConstraint(Sketcher.Constraint("Coincident", 26, 2, 24, 1))
sketch2.addConstraint(Sketcher.Constraint("Vertical", 0))
sketch2.addConstraint(Sketcher.Constraint("Horizontal", 1))
sketch2.addConstraint(Sketcher.Constraint("Horizontal", 13))
sketch2.addConstraint(Sketcher.Constraint("Horizontal", 14))
sketch2.addConstraint(Sketcher.Constraint("Horizontal", 16))
sketch2.addConstraint(Sketcher.Constraint("Vertical", 17))
sketch2.addConstraint(Sketcher.Constraint("Horizontal", 18))
sketch2.addConstraint(Sketcher.Constraint("Vertical", 19))
sketch2.addConstraint(Sketcher.Constraint("Horizontal", 20))
sketch2.addConstraint(Sketcher.Constraint("Vertical", 21))
sketch2.addConstraint(Sketcher.Constraint("Horizontal", 22))
sketch2.addConstraint(Sketcher.Constraint("Vertical", 23))
sketch2.addConstraint(Sketcher.Constraint("Horizontal", 24))
sketch2.addConstraint(Sketcher.Constraint("Vertical", 26))
sketch2.addConstraint(Sketcher.Constraint("DistanceY", 17, 2, 0, 2, 3.175))
sketch2.addConstraint(Sketcher.Constraint("DistanceX", 16, 1, 16, 2, 1.50609))
sketch2.addConstraint(Sketcher.Constraint("DistanceY", 0, 1, 0, 2, 0.325641))
sketch2.addConstraint(Sketcher.Constraint("DistanceY", 21, 1, 21, 2, 0.325641))
sketch2.addConstraint(Sketcher.Constraint("DistanceY", 2, 2, 1, 2, 1.5875))
sketch2.addConstraint(Sketcher.Constraint("Distance", 15, 3.061528))
sketch2.addConstraint(Sketcher.Constraint("Distance", 25, 1.67242))
sketch2.addConstraint(Sketcher.Constraint("DistanceX", 1, 2, 1, 1, 1.302564))
sketch2.addConstraint(Sketcher.Constraint("DistanceX", 13, 1, 13, 2, 1.079958))
sketch2.addConstraint(Sketcher.Constraint("DistanceX", 14, 2, 14, 1, 0.057878))
sketch2.addConstraint(Sketcher.Constraint("DistanceX", 18, 1, 18, 2, 0.284936))
sketch2.addConstraint(Sketcher.Constraint("DistanceX", 20, 1, 20, 2, 0.366346))
sketch2.addConstraint(Sketcher.Constraint("DistanceX", 22, 2, 22, 1, 0.366346))
sketch2.addConstraint(Sketcher.Constraint("DistanceX", 24, 2, 24, 1, 0.946394))
sketch2.addConstraint(Sketcher.Constraint("DistanceY", 17, 2, 17, 1, 0.732692))
sketch2.addConstraint(Sketcher.Constraint("DistanceY", 19, 1, 19, 2, 0.732692))
sketch2.addConstraint(Sketcher.Constraint("DistanceX", -1, 1, 0, 2, 115.946332))
sketch2.addConstraint(Sketcher.Constraint("DistanceX", -1, 1, 15, 2, 116.394088))
sketch2.addConstraint(Sketcher.Constraint("DistanceY", 15, 2, 24, 2, 0.325641))
sketch2.addConstraint(Sketcher.Constraint("DistanceX", 24, 2, 22, 2, 1.23133))
pocket1 = doc.addObject("PartDesign::Pocket", "Pocket")
body.addObject(pocket1)
pocket1.Profile = sketch2
pocket1.Length = 1

doc.recompute()
